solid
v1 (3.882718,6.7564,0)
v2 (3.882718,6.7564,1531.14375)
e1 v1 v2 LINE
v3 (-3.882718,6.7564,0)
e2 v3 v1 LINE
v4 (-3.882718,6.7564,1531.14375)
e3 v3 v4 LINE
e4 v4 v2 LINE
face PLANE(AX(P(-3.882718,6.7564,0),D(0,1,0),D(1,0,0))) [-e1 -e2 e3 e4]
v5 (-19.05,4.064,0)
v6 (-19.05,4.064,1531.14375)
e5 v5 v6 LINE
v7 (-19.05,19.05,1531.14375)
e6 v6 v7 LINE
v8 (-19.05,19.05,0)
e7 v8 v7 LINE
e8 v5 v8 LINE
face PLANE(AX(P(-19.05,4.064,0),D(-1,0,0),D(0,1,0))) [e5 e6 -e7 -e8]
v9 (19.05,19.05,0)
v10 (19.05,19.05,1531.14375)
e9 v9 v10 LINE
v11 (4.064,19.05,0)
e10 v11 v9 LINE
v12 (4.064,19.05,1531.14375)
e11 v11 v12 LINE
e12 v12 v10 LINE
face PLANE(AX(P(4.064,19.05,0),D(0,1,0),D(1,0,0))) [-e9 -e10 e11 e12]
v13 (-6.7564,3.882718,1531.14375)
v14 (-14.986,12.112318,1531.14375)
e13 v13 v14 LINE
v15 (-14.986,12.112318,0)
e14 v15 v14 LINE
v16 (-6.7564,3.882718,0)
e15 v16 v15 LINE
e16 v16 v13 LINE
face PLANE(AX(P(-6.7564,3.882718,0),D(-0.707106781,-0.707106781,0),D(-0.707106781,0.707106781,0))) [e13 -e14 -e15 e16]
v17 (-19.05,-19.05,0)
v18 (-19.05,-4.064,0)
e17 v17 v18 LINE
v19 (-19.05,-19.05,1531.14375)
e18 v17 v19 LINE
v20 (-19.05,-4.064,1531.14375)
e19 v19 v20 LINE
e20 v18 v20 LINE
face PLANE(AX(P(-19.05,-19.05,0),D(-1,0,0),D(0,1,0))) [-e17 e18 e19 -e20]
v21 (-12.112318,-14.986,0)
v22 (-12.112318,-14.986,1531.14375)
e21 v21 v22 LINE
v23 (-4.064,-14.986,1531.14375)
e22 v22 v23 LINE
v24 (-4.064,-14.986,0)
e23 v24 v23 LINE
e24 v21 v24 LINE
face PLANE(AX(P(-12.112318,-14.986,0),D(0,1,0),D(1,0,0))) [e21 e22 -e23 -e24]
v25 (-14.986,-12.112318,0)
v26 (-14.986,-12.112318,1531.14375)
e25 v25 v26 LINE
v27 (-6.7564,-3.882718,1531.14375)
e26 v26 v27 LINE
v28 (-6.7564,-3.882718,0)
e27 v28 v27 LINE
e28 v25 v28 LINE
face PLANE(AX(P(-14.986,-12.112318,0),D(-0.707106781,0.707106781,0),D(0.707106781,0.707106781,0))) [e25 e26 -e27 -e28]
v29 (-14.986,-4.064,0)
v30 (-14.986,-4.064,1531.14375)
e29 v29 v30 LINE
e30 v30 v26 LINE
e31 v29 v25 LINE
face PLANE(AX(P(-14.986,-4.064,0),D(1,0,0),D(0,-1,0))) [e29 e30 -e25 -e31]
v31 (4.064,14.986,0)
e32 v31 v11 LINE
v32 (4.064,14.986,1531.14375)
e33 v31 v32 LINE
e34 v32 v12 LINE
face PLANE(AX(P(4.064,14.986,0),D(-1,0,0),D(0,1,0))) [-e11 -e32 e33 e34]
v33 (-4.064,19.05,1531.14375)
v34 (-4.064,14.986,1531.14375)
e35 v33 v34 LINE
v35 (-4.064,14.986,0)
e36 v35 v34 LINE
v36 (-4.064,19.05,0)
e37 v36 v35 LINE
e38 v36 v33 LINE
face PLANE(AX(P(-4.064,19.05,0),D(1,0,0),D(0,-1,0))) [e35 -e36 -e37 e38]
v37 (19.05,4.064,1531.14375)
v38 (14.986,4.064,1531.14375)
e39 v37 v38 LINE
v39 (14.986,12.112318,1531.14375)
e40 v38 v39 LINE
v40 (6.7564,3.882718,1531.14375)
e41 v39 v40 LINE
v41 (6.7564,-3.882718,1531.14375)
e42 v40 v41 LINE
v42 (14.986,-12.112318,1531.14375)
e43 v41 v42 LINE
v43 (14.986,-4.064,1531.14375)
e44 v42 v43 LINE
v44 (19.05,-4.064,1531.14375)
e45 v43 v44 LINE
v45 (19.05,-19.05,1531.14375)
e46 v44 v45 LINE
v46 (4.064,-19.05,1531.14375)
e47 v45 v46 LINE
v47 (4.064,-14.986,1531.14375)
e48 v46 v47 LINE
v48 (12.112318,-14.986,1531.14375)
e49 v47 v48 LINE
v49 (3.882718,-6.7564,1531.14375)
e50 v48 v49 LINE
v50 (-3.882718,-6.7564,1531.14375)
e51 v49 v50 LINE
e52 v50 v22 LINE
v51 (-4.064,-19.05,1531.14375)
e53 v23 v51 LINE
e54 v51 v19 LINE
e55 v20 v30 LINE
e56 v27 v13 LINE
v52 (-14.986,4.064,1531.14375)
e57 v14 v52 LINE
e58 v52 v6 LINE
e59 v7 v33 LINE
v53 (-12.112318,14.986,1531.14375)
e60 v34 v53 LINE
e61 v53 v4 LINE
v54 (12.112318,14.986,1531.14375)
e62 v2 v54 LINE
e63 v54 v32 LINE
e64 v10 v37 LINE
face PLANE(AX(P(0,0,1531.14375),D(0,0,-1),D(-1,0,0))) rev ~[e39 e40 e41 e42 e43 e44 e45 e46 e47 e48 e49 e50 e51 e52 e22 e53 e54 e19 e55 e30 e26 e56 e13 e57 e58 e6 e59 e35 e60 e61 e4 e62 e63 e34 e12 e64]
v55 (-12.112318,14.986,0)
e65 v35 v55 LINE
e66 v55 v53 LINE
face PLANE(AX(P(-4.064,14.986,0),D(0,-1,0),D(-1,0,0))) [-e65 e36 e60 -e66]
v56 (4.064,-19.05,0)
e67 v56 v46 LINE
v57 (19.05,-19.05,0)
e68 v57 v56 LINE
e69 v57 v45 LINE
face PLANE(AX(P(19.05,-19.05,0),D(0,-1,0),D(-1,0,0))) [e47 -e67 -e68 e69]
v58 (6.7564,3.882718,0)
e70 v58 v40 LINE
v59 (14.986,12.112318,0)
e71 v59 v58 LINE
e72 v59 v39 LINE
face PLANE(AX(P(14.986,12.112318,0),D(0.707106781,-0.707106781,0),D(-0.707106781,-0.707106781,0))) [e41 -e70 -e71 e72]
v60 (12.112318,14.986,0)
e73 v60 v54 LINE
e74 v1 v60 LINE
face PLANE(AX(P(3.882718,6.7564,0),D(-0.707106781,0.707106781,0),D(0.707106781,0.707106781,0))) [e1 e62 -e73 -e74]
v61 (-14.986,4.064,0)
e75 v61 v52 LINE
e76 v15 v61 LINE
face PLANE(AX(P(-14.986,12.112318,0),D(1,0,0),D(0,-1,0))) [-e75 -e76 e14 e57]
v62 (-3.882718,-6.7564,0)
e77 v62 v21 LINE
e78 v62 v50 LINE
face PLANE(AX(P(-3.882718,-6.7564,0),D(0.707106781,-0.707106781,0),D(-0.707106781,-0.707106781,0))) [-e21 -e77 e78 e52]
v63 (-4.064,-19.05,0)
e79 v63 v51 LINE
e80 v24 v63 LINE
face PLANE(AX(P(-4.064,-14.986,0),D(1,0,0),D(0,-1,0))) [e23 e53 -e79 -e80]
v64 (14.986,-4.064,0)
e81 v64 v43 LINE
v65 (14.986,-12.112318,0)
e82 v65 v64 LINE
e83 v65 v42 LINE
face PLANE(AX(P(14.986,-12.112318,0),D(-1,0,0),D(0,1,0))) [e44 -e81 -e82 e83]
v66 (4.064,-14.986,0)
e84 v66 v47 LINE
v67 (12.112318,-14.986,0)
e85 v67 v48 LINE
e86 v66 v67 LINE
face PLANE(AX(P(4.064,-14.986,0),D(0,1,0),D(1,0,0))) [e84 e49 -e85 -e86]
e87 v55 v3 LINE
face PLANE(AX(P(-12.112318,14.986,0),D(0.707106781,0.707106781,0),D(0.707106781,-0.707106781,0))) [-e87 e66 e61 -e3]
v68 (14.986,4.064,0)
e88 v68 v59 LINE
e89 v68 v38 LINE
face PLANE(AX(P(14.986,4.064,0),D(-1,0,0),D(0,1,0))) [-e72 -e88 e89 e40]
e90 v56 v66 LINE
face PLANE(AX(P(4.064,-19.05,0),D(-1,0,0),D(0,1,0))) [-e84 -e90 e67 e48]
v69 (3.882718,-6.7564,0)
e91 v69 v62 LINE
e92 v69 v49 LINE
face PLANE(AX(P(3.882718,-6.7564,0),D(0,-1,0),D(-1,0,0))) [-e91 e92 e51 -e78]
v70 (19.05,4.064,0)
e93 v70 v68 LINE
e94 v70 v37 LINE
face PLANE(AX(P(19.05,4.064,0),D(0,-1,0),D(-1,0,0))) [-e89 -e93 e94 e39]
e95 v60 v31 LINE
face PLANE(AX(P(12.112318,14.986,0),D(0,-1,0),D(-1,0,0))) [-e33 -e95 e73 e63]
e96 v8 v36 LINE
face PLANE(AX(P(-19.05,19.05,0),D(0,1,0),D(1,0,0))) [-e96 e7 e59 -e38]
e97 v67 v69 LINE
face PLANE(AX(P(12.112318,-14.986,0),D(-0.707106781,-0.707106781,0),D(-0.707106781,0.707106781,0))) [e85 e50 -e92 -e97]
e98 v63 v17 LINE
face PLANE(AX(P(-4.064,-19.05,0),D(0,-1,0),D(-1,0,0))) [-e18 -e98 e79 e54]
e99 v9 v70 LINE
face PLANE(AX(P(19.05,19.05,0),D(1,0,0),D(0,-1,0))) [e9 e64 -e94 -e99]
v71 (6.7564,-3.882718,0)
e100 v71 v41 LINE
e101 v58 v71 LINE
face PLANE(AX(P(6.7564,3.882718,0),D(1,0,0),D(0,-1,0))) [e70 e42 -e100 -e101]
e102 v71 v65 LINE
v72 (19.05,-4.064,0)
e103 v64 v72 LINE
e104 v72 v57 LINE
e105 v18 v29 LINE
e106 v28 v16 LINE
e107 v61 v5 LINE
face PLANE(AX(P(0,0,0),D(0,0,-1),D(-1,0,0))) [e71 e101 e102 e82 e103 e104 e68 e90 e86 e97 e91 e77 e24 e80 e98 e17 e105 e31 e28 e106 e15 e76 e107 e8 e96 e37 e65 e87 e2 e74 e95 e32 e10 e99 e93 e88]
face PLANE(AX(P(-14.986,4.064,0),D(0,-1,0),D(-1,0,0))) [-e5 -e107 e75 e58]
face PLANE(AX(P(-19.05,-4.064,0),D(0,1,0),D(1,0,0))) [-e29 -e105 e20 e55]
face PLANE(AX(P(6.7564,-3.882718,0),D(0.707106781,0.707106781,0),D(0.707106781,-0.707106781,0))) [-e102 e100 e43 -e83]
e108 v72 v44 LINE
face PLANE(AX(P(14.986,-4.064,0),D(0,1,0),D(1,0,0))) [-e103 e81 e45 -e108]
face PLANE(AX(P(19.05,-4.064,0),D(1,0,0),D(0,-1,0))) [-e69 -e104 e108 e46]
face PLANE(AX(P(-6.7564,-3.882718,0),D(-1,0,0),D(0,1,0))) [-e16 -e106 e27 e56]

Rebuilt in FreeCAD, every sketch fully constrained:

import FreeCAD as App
import Part
import Sketcher
Q = App.Units.Quantity

doc = App.newDocument("Part")
params = doc.addObject("Spreadsheet::Sheet", "Params")
for row, (alias, value) in enumerate([
    ("sketch1_width", "0.59 in"),
    ("sketch1_width2", "0.16 in"),
    ("pad1_length", "60.28125 in"),
], start=1):
    params.set(f"A{row}", alias)
    params.set(f"B{row}", "=" + value)
    params.setAlias(f"B{row}", alias)

body = doc.addObject("PartDesign::Body", "Body")

# Sketch on XY plane
sketch1 = doc.addObject("Sketcher::SketchObject", "Sketch")
body.addObject(sketch1)
sketch1.AttachmentSupport = (doc.XY_Plane, [""])
sketch1.MapMode = "FlatFace"
sketch1.addGeometry([
    Part.LineSegment(App.Vector(-4.064, 19.05, 0), App.Vector(-19.05, 19.05, 0)),  # 0
    Part.LineSegment(App.Vector(-19.05, 19.05, 0), App.Vector(-19.05, 4.064, 0)),  # 1
    Part.LineSegment(App.Vector(-19.05, 4.064, 0), App.Vector(-14.986, 4.064, 0)),  # 2
    Part.LineSegment(App.Vector(-14.986, 4.064, 0), App.Vector(-14.986, 12.112318, 0)),  # 3
    Part.LineSegment(App.Vector(-14.986, 12.112318, 0), App.Vector(-6.7564, 3.882718, 0)),  # 4
    Part.LineSegment(App.Vector(-6.7564, 3.882718, 0), App.Vector(-6.7564, -3.882718, 0)),  # 5
    Part.LineSegment(App.Vector(-6.7564, -3.882718, 0), App.Vector(-14.986, -12.112318, 0)),  # 6
    Part.LineSegment(App.Vector(-14.986, -12.112318, 0), App.Vector(-14.986, -4.064, 0)),  # 7
    Part.LineSegment(App.Vector(-14.986, -4.064, 0), App.Vector(-19.05, -4.064, 0)),  # 8
    Part.LineSegment(App.Vector(-19.05, -4.064, 0), App.Vector(-19.05, -19.05, 0)),  # 9
    Part.LineSegment(App.Vector(-19.05, -19.05, 0), App.Vector(-4.064, -19.05, 0)),  # 10
    Part.LineSegment(App.Vector(-4.064, -19.05, 0), App.Vector(-4.064, -14.986, 0)),  # 11
    Part.LineSegment(App.Vector(-4.064, -14.986, 0), App.Vector(-12.112318, -14.986, 0)),  # 12
    Part.LineSegment(App.Vector(-12.112318, -14.986, 0), App.Vector(-3.882718, -6.7564, 0)),  # 13
    Part.LineSegment(App.Vector(-3.882718, -6.7564, 0), App.Vector(3.882718, -6.7564, 0)),  # 14
    Part.LineSegment(App.Vector(3.882718, -6.7564, 0), App.Vector(12.112318, -14.986, 0)),  # 15
    Part.LineSegment(App.Vector(12.112318, -14.986, 0), App.Vector(4.064, -14.986, 0)),  # 16
    Part.LineSegment(App.Vector(4.064, -14.986, 0), App.Vector(4.064, -19.05, 0)),  # 17
    Part.LineSegment(App.Vector(4.064, -19.05, 0), App.Vector(19.05, -19.05, 0)),  # 18
    Part.LineSegment(App.Vector(19.05, -19.05, 0), App.Vector(19.05, -4.064, 0)),  # 19
    Part.LineSegment(App.Vector(19.05, -4.064, 0), App.Vector(14.986, -4.064, 0)),  # 20
    Part.LineSegment(App.Vector(14.986, -4.064, 0), App.Vector(14.986, -12.112318, 0)),  # 21
    Part.LineSegment(App.Vector(14.986, -12.112318, 0), App.Vector(6.7564, -3.882718, 0)),  # 22
    Part.LineSegment(App.Vector(6.7564, -3.882718, 0), App.Vector(6.7564, 3.882718, 0)),  # 23
    Part.LineSegment(App.Vector(6.7564, 3.882718, 0), App.Vector(14.986, 12.112318, 0)),  # 24
    Part.LineSegment(App.Vector(14.986, 12.112318, 0), App.Vector(14.986, 4.064, 0)),  # 25
    Part.LineSegment(App.Vector(14.986, 4.064, 0), App.Vector(19.05, 4.064, 0)),  # 26
    Part.LineSegment(App.Vector(19.05, 4.064, 0), App.Vector(19.05, 19.05, 0)),  # 27
    Part.LineSegment(App.Vector(19.05, 19.05, 0), App.Vector(4.064, 19.05, 0)),  # 28
    Part.LineSegment(App.Vector(4.064, 19.05, 0), App.Vector(4.064, 14.986, 0)),  # 29
    Part.LineSegment(App.Vector(4.064, 14.986, 0), App.Vector(12.112318, 14.986, 0)),  # 30
    Part.LineSegment(App.Vector(12.112318, 14.986, 0), App.Vector(3.882718, 6.7564, 0)),  # 31
    Part.LineSegment(App.Vector(3.882718, 6.7564, 0), App.Vector(-3.882718, 6.7564, 0)),  # 32
    Part.LineSegment(App.Vector(-3.882718, 6.7564, 0), App.Vector(-12.112318, 14.986, 0)),  # 33
    Part.LineSegment(App.Vector(-12.112318, 14.986, 0), App.Vector(-4.064, 14.986, 0)),  # 34
    Part.LineSegment(App.Vector(-4.064, 14.986, 0), App.Vector(-4.064, 19.05, 0)),  # 35
], False)
sketch1.addConstraint([
    Sketcher.Constraint("Coincident", 0, 2, 1, 1),
    Sketcher.Constraint("Coincident", 1, 2, 2, 1),
    Sketcher.Constraint("Coincident", 2, 2, 3, 1),
    Sketcher.Constraint("Coincident", 3, 2, 4, 1),
    Sketcher.Constraint("Coincident", 4, 2, 5, 1),
    Sketcher.Constraint("Coincident", 5, 2, 6, 1),
    Sketcher.Constraint("Coincident", 6, 2, 7, 1),
    Sketcher.Constraint("Coincident", 7, 2, 8, 1),
    Sketcher.Constraint("Coincident", 8, 2, 9, 1),
    Sketcher.Constraint("Coincident", 9, 2, 10, 1),
    Sketcher.Constraint("Coincident", 10, 2, 11, 1),
    Sketcher.Constraint("Coincident", 11, 2, 12, 1),
    Sketcher.Constraint("Coincident", 12, 2, 13, 1),
    Sketcher.Constraint("Coincident", 13, 2, 14, 1),
    Sketcher.Constraint("Coincident", 14, 2, 15, 1),
    Sketcher.Constraint("Coincident", 15, 2, 16, 1),
    Sketcher.Constraint("Coincident", 16, 2, 17, 1),
    Sketcher.Constraint("Coincident", 17, 2, 18, 1),
    Sketcher.Constraint("Coincident", 18, 2, 19, 1),
    Sketcher.Constraint("Coincident", 19, 2, 20, 1),
    Sketcher.Constraint("Coincident", 20, 2, 21, 1),
    Sketcher.Constraint("Coincident", 21, 2, 22, 1),
    Sketcher.Constraint("Coincident", 22, 2, 23, 1),
    Sketcher.Constraint("Coincident", 23, 2, 24, 1),
    Sketcher.Constraint("Coincident", 24, 2, 25, 1),
    Sketcher.Constraint("Coincident", 25, 2, 26, 1),
    Sketcher.Constraint("Coincident", 26, 2, 27, 1),
    Sketcher.Constraint("Coincident", 27, 2, 28, 1),
    Sketcher.Constraint("Coincident", 28, 2, 29, 1),
    Sketcher.Constraint("Coincident", 29, 2, 30, 1),
    Sketcher.Constraint("Coincident", 30, 2, 31, 1),
    Sketcher.Constraint("Coincident", 31, 2, 32, 1),
    Sketcher.Constraint("Coincident", 32, 2, 33, 1),
    Sketcher.Constraint("Coincident", 33, 2, 34, 1),
    Sketcher.Constraint("Coincident", 34, 2, 35, 1),
    Sketcher.Constraint("Coincident", 35, 2, 0, 1),
    Sketcher.Constraint("Horizontal", 0),
    Sketcher.Constraint("Vertical", 1),
    Sketcher.Constraint("Horizontal", 2),
    Sketcher.Constraint("Vertical", 3),
    Sketcher.Constraint("Vertical", 5),
    Sketcher.Constraint("Vertical", 7),
    Sketcher.Constraint("Horizontal", 8),
    Sketcher.Constraint("Vertical", 9),
    Sketcher.Constraint("Horizontal", 10),
    Sketcher.Constraint("Vertical", 11),
    Sketcher.Constraint("Horizontal", 12),
    Sketcher.Constraint("Horizontal", 14),
    Sketcher.Constraint("Horizontal", 16),
    Sketcher.Constraint("Vertical", 17),
    Sketcher.Constraint("Horizontal", 18),
    Sketcher.Constraint("Vertical", 19),
    Sketcher.Constraint("Horizontal", 20),
    Sketcher.Constraint("Vertical", 21),
    Sketcher.Constraint("Vertical", 23),
    Sketcher.Constraint("Vertical", 25),
    Sketcher.Constraint("Horizontal", 26),
    Sketcher.Constraint("Vertical", 27),
    Sketcher.Constraint("Horizontal", 28),
    Sketcher.Constraint("Vertical", 29),
    Sketcher.Constraint("Horizontal", 30),
    Sketcher.Constraint("Horizontal", 32),
    Sketcher.Constraint("Horizontal", 34),
    Sketcher.Constraint("Vertical", 35),
    Sketcher.Constraint("Symmetric", 0, 2, 18, 2, -1, 1),
    Sketcher.Constraint("Symmetric", 2, 2, 20, 2, -1, 1),
    Sketcher.Constraint("Symmetric", 4, 2, 22, 2, -1, 1),
    Sketcher.Constraint("Symmetric", 6, 2, 24, 2, -1, 1),
    Sketcher.Constraint("Symmetric", 8, 2, 26, 2, -1, 1),
    Sketcher.Constraint("Symmetric", 10, 2, 28, 2, -1, 1),
    Sketcher.Constraint("Symmetric", 12, 2, 30, 2, -1, 1),
    Sketcher.Constraint("Symmetric", 13, 2, 31, 2, -1, 1),
    Sketcher.Constraint("Symmetric", 15, 2, 33, 2, -1, 1),
    Sketcher.Constraint("Symmetric", 12, 2, 15, 2, -2),
    Sketcher.Constraint("Symmetric", 10, 2, 17, 2, -2),
    Sketcher.Constraint("Symmetric", 8, 2, 19, 2, -2),
    Sketcher.Constraint("Symmetric", 6, 2, 21, 2, -2),
    Sketcher.Constraint("Perpendicular", 4, 6),
    Sketcher.Constraint("Parallel", 6, 13),
    Sketcher.Constraint("Perpendicular", 13, 15),
    Sketcher.Constraint("Parallel", 15, 22),
    Sketcher.Constraint("Perpendicular", 22, 24),
    Sketcher.Constraint("Perpendicular", 31, 33),
    Sketcher.Constraint("Horizontal", 5, 2, 22, 2),
    Sketcher.Constraint("Vertical", 11, 2, 34, 2),
    Sketcher.Constraint("Equal", 28, 1),
    Sketcher.Constraint("Equal", 34, 3),
    Sketcher.Constraint("Equal", 32, 5),
    Sketcher.Constraint("Equal", 26, 11),
    Sketcher.Constraint("Equal", 6, 13),
    Sketcher.Constraint("DistanceX", 0, 2, 0, 1, Q("0.59 in")),
    Sketcher.Constraint("DistanceX", 2, 1, 2, 2, Q("0.16 in")),
    Sketcher.Constraint("DistanceX", 0, 2, -1, 1, Q("0.75 in")),
    Sketcher.Constraint("DistanceX", 4, 2, -1, 1, Q("0.266 in")),
    Sketcher.Constraint("DistanceX", 12, 2, 12, 1, 8.048318),
])
sketch1.setExpression("Constraints[90]", "Params.sketch1_width")
sketch1.setExpression("Constraints[91]", "Params.sketch1_width2")
pad1 = doc.addObject("PartDesign::Pad", "Pad")
body.addObject(pad1)
pad1.Profile = sketch1
pad1.setExpression("Length", "Params.pad1_length")

doc.recompute()
